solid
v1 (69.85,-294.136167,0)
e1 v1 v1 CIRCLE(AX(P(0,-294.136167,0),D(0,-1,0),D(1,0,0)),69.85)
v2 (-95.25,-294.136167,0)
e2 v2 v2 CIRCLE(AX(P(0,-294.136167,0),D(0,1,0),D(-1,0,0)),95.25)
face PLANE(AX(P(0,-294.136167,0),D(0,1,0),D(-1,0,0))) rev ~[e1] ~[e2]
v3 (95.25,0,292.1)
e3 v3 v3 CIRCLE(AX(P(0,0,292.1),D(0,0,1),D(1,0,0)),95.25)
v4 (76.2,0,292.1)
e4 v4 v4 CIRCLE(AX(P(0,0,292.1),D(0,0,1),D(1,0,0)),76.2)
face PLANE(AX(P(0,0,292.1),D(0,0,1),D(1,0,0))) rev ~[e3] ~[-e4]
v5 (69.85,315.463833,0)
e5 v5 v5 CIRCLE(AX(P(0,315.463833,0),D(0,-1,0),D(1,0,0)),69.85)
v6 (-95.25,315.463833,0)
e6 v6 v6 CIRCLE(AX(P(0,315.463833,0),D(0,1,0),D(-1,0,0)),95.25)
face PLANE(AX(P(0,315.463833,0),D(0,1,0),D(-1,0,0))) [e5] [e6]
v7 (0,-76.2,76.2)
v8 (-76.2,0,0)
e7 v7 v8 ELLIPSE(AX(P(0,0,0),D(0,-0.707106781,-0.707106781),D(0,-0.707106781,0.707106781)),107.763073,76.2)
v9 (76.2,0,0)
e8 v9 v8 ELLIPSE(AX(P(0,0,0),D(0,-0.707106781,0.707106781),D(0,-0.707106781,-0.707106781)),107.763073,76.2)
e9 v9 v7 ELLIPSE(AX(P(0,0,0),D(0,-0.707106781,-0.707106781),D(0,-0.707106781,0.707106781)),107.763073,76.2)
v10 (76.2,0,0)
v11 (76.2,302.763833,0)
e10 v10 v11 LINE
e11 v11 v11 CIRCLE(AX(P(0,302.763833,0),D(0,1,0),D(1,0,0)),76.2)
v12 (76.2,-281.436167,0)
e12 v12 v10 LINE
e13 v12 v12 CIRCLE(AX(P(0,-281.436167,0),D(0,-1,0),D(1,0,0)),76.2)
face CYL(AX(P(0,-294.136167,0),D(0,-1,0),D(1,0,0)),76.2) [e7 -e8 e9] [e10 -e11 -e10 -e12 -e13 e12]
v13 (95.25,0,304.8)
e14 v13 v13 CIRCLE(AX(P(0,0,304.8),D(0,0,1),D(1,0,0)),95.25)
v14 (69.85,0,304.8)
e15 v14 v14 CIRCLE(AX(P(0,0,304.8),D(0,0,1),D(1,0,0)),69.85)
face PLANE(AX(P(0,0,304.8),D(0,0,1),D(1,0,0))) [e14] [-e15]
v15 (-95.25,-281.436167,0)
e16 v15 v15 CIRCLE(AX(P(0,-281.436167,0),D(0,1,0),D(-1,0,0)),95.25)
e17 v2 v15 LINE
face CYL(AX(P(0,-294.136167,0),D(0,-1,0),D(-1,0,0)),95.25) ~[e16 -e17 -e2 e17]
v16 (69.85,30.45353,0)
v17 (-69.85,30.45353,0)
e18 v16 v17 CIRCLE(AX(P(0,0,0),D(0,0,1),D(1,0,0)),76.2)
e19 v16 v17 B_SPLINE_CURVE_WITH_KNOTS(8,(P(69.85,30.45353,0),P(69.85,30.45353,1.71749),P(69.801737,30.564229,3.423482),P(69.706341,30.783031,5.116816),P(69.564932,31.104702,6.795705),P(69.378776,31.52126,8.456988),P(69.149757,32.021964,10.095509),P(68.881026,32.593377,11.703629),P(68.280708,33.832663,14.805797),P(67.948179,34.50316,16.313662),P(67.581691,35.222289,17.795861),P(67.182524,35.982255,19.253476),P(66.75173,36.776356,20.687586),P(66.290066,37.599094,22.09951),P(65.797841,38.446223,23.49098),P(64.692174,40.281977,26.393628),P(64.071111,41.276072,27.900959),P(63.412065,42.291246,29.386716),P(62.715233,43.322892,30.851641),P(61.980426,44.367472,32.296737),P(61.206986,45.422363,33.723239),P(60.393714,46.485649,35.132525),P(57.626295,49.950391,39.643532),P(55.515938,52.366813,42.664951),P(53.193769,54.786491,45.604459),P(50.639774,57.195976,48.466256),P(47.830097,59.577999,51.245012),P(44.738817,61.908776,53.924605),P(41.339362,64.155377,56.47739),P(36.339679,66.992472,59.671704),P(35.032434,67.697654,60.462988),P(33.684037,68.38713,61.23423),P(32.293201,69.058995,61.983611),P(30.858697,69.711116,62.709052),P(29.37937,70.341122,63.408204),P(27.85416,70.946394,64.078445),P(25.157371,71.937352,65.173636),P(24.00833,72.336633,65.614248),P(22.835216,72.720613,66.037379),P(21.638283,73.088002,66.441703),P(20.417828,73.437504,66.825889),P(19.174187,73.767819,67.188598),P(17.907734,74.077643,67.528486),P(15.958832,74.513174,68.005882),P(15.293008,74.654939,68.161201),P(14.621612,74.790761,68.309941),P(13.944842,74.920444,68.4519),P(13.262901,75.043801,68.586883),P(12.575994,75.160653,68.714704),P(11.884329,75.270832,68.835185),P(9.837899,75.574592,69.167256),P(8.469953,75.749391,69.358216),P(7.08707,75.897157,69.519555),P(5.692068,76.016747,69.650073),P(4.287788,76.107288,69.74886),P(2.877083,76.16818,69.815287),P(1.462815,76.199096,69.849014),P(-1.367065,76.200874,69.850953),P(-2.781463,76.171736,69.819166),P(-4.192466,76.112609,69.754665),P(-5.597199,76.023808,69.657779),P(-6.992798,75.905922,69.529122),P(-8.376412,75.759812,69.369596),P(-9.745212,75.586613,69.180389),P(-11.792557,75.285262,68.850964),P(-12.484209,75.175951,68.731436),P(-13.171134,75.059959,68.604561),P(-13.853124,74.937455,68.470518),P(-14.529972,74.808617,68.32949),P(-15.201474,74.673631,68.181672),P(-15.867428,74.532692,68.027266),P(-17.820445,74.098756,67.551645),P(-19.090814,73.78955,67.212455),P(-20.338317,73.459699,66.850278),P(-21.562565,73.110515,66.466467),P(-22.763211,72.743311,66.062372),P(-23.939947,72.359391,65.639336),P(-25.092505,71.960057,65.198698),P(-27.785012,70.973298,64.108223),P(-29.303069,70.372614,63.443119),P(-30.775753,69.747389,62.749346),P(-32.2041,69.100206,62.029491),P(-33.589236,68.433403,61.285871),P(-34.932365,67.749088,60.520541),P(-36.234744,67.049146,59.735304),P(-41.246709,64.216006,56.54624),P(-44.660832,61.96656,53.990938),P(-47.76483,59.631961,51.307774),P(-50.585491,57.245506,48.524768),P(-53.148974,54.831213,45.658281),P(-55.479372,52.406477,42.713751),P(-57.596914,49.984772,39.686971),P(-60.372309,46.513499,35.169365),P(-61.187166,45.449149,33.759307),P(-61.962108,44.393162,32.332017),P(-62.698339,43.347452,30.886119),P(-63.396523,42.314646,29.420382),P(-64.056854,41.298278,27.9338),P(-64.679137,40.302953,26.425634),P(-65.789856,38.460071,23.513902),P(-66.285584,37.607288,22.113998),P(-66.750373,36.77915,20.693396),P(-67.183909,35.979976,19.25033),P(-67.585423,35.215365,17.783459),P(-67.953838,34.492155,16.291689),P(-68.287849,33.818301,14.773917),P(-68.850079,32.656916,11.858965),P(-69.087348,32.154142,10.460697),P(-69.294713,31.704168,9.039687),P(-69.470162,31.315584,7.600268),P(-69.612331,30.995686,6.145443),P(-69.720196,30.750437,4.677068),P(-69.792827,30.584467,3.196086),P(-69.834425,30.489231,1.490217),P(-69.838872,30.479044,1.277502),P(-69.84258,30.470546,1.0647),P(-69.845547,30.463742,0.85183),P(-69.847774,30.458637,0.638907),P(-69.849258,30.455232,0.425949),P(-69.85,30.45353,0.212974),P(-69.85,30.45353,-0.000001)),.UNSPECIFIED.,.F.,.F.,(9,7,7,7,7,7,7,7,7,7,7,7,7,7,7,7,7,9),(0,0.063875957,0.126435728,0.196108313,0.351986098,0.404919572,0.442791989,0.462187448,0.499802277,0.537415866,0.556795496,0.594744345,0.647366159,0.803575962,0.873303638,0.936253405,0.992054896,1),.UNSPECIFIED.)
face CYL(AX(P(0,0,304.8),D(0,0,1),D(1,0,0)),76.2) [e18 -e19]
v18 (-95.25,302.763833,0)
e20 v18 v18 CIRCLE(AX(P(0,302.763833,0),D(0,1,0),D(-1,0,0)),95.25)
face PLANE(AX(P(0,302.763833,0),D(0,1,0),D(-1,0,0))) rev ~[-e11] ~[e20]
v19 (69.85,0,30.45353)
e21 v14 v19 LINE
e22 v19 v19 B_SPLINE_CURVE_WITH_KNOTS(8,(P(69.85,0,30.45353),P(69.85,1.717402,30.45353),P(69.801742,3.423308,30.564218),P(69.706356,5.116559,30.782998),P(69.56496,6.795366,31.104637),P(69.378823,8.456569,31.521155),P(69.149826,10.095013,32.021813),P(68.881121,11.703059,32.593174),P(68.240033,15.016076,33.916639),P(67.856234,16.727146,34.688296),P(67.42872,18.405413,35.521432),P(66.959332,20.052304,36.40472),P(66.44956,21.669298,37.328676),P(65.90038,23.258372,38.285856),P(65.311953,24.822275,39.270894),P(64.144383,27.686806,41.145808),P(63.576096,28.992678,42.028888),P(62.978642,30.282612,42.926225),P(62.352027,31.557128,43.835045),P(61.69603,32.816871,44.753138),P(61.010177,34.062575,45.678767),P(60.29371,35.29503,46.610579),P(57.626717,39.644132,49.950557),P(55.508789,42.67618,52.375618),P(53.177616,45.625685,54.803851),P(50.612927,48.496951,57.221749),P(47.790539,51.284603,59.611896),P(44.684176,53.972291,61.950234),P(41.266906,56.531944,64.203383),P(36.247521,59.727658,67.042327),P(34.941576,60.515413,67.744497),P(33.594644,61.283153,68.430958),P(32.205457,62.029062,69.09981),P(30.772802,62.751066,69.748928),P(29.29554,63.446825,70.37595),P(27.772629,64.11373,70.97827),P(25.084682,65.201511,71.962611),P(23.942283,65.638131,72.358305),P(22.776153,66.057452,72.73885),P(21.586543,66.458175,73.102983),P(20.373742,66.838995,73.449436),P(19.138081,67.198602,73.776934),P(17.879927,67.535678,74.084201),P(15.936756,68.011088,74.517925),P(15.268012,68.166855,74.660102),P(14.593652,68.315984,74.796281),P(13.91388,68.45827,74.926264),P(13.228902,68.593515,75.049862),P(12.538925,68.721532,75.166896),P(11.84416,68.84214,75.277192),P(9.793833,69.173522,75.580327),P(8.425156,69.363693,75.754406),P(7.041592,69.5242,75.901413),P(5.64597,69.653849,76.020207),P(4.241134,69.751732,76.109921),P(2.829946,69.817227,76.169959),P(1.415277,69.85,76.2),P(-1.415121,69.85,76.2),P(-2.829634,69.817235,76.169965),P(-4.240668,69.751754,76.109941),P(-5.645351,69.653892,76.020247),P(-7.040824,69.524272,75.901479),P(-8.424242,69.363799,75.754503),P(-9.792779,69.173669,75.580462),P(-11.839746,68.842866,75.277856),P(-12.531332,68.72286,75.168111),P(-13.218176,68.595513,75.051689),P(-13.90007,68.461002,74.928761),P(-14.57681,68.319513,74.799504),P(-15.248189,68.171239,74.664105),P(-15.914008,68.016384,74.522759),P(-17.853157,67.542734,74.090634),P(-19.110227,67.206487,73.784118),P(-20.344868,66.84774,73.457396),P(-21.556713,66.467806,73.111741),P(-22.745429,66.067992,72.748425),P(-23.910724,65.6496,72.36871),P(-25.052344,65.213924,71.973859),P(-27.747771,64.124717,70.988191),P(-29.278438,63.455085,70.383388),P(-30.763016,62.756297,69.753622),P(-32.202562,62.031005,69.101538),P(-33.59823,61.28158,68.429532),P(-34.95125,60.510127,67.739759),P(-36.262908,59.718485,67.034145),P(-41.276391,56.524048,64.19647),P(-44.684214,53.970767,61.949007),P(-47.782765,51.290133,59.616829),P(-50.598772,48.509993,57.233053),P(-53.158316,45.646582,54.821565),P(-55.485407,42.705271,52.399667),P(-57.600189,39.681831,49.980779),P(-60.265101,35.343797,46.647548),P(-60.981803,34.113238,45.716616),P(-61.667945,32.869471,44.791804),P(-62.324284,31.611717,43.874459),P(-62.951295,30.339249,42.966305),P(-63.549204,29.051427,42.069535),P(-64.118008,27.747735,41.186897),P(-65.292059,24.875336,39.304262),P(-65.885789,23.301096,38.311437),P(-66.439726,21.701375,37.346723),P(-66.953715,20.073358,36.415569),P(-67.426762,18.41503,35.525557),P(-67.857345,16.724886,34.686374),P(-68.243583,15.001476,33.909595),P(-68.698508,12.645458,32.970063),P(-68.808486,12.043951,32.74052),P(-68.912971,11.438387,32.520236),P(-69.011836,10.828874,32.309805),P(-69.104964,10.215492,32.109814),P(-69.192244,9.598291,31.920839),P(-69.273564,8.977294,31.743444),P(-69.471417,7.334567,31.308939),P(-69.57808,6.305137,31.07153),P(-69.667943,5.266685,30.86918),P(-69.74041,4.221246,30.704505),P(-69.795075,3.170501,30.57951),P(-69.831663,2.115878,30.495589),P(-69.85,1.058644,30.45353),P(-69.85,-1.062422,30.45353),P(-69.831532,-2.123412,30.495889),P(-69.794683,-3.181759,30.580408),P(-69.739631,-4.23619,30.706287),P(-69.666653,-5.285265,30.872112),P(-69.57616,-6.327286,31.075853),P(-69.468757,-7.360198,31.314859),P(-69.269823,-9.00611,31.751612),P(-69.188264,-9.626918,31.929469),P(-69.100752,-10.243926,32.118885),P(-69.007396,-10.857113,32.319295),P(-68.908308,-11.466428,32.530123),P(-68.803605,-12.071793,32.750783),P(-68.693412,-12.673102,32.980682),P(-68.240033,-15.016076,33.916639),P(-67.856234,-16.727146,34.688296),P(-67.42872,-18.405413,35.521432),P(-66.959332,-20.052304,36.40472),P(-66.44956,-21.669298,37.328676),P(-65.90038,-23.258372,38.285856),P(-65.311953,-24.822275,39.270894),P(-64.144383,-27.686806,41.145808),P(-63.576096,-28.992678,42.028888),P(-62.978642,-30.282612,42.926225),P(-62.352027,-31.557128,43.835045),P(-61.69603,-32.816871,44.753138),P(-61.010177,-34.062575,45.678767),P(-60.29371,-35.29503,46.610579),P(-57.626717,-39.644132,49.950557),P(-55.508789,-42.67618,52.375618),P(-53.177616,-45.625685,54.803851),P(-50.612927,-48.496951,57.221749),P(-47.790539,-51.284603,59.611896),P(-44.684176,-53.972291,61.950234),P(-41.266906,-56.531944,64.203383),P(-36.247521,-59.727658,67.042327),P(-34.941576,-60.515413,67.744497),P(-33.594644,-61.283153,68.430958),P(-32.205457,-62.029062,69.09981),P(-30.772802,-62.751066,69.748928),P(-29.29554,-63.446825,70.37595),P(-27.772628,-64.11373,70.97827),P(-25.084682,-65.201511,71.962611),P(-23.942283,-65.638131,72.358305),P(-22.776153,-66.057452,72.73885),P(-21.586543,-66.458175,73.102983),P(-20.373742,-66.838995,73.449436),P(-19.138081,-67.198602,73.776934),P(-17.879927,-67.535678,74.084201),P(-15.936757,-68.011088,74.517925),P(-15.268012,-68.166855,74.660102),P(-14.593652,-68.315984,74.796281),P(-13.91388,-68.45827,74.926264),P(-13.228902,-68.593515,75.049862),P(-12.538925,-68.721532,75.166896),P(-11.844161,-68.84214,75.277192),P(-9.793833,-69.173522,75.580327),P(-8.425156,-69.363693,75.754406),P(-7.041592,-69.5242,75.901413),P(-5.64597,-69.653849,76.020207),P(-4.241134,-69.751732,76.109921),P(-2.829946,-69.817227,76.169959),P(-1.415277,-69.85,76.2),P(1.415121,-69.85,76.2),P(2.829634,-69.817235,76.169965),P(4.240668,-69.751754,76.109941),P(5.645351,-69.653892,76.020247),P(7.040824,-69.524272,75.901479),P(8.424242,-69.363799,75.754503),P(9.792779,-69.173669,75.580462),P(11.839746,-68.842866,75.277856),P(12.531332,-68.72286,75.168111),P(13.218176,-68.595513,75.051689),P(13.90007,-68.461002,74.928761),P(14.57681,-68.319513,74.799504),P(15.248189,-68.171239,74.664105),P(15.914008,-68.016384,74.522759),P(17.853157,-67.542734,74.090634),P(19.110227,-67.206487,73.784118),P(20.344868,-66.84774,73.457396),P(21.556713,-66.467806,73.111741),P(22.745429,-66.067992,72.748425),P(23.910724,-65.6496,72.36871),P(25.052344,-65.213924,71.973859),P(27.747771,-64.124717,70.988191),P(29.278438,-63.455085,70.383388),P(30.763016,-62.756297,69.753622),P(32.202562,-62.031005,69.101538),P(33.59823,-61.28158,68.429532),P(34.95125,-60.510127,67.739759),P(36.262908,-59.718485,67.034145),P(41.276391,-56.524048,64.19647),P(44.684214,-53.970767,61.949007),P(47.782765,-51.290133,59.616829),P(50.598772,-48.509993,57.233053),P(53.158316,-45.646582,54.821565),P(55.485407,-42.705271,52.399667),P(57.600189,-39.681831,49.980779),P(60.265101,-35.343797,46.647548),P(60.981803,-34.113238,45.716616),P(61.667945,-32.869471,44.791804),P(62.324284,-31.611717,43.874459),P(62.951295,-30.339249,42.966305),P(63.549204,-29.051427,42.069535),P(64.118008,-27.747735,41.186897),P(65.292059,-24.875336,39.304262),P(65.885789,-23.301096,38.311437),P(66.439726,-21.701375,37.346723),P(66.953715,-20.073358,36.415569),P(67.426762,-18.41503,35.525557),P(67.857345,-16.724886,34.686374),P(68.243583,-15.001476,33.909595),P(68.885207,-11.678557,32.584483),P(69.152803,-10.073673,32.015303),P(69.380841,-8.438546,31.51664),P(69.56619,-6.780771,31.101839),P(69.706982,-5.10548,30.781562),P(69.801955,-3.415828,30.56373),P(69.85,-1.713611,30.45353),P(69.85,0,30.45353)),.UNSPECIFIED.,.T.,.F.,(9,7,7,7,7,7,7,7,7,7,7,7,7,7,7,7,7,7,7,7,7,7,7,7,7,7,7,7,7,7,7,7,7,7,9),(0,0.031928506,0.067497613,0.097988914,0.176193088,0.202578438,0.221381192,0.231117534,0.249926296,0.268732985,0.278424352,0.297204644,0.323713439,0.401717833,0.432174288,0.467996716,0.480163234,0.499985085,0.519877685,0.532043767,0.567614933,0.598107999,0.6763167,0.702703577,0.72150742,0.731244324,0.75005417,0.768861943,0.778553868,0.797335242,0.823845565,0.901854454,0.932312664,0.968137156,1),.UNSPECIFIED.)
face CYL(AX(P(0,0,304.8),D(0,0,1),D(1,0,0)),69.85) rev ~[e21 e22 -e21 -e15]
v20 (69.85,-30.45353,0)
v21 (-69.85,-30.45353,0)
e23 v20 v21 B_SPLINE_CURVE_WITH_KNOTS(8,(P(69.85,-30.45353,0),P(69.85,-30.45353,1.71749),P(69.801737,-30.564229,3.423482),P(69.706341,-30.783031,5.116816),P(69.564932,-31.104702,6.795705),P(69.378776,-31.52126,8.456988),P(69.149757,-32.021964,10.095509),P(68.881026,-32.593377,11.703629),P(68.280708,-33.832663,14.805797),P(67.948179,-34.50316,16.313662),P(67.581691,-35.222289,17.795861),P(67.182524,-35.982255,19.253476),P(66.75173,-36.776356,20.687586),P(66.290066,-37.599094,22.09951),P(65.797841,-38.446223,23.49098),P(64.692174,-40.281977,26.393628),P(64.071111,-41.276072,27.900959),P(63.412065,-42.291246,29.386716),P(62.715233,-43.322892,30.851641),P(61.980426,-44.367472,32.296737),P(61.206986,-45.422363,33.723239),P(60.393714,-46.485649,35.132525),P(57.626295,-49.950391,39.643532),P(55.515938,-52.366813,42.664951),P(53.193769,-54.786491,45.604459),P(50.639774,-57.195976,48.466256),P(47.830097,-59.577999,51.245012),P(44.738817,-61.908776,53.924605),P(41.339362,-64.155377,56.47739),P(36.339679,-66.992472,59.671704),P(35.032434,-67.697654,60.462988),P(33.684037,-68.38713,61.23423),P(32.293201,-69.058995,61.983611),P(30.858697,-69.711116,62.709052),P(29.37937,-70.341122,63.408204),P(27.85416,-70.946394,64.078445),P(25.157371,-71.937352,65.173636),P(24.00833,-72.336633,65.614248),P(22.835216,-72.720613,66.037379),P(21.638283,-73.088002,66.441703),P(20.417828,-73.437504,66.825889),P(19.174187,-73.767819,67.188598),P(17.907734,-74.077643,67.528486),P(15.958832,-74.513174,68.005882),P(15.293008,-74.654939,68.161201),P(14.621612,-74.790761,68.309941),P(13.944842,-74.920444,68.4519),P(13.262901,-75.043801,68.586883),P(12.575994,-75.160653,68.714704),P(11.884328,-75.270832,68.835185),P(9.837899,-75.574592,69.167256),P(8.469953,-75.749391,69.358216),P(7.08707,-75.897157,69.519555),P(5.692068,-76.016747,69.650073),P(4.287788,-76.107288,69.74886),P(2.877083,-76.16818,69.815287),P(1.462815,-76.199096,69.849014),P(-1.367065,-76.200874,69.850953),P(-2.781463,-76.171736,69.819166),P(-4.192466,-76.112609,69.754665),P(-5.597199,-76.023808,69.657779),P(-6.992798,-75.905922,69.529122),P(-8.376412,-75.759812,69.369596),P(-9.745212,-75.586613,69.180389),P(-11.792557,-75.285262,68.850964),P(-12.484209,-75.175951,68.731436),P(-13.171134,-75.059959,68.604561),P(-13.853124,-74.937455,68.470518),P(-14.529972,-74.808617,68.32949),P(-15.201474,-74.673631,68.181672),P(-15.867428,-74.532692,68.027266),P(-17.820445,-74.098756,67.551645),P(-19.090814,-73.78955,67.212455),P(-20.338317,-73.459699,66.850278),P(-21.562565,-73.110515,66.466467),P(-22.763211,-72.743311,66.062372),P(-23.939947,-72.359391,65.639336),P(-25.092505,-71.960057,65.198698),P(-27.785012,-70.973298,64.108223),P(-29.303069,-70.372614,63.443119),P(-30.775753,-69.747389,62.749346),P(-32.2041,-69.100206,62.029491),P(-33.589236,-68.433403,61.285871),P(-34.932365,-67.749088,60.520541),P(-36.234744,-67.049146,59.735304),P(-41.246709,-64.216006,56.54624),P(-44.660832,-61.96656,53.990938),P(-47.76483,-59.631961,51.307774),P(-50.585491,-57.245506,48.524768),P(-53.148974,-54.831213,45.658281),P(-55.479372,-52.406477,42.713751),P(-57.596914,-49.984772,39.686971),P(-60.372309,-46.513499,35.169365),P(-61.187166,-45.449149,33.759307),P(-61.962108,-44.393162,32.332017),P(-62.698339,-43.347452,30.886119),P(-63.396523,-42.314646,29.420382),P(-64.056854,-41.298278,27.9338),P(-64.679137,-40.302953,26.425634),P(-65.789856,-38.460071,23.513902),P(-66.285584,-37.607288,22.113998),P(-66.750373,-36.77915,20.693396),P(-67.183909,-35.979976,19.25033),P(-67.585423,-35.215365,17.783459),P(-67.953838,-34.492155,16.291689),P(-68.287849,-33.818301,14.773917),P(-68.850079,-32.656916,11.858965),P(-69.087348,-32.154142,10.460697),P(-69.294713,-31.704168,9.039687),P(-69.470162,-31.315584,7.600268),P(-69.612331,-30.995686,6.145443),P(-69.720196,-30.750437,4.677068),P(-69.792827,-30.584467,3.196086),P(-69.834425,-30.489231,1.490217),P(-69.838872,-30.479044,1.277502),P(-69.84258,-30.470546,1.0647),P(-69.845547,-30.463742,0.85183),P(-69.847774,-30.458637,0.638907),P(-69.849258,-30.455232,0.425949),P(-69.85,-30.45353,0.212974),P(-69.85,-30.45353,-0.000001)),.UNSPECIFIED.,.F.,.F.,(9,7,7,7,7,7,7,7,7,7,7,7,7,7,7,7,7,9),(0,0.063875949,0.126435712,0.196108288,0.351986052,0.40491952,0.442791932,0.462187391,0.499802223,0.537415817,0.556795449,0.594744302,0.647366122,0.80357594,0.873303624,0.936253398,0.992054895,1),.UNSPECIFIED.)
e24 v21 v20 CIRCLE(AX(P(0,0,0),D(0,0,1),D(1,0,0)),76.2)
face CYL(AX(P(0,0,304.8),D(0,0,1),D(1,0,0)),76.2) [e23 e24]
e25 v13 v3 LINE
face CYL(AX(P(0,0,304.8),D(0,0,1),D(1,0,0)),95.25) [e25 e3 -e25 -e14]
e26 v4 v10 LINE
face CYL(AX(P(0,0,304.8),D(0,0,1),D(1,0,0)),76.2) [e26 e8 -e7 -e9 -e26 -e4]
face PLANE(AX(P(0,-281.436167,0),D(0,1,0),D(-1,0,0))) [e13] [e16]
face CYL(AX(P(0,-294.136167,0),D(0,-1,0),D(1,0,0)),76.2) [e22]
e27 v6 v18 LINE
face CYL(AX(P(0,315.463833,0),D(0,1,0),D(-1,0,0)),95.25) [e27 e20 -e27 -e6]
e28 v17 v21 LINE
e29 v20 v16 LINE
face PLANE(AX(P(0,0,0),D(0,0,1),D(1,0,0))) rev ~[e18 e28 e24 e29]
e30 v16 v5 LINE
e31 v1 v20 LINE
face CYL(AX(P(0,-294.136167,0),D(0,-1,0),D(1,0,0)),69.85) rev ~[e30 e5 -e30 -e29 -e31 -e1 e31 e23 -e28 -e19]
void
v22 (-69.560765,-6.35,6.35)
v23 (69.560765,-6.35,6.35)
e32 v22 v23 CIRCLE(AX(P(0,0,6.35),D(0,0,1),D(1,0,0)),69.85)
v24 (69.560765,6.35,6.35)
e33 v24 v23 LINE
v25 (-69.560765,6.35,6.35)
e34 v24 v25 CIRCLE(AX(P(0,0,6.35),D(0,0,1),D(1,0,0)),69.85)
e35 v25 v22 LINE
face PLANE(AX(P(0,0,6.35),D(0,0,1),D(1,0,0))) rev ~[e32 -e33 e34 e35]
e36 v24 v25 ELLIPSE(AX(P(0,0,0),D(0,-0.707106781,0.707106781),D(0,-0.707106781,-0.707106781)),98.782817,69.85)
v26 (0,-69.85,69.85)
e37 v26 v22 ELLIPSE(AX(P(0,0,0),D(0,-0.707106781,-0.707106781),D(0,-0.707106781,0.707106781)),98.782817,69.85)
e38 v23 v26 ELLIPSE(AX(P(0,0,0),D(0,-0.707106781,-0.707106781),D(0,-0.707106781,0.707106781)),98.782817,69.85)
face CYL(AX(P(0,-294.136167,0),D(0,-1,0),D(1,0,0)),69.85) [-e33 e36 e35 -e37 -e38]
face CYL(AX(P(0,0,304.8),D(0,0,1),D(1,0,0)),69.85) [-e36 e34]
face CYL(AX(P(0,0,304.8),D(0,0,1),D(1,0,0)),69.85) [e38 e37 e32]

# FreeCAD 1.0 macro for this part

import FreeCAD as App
import Part
import Sketcher

V = App.Vector
Q = App.Units.Quantity


def faces_at(feature, points):
    """Names of the faces that lie closest to the given points."""
    faces = feature.Shape.Faces
    near = lambda p: min(range(len(faces)), key=lambda i: faces[i].distToShape(Part.Vertex(*p))[0])
    return sorted({f"Face{near(p) + 1}" for p in points})

doc = App.newDocument("Part")
body = doc.addObject("PartDesign::Body", "Body")

sketch1 = body.newObject("Sketcher::SketchObject", "Sketch")
sketch1.AttachmentSupport = (doc.getObject("XZ_Plane"), [""])
sketch1.MapMode = "FlatFace"
sketch1.AttachmentOffset = App.Placement(V(0, 0, 294.136167), App.Rotation())
sketch1.addGeometry(Part.Circle(V(0, 0, 0), V(0, 0, 1), 76.2), False)
sketch1.addConstraint(Sketcher.Constraint("Coincident", 0, 3, -1, 1))
sketch1.addConstraint(Sketcher.Constraint("Diameter", 0, Q("6 in")))
pad1 = body.newObject("PartDesign::Pad", "Pad")
pad1.Profile = sketch1
pad1.Length = Q("24 in")
pad1.Reversed = True
doc.recompute()

thickness = body.newObject("PartDesign::Thickness", "Thickness")
thickness.Base = (pad1, faces_at(pad1, [(0, 315.464, 0), (0, -294.136, 0)]))
thickness.Value = Q("0.25 in")
thickness.Reversed = True
thickness.Join = "Arc"

sketch2 = body.newObject("Sketcher::SketchObject", "Sketch001")
sketch2.AttachmentSupport = (doc.getObject("XZ_Plane"), [""])
sketch2.MapMode = "FlatFace"
sketch2.AttachmentOffset = App.Placement(V(0, 0, 294.136167), App.Rotation())
sketch2.addGeometry(Part.Circle(V(0, 0, 0), V(0, 0, 1), 95.25), False)
sketch2.addGeometry(Part.Circle(V(0, 0, 0), V(0, 0, 1), 76.2), False)
sketch2.addConstraint(Sketcher.Constraint("Coincident", 0, 3, -1, 1))
sketch2.addConstraint(Sketcher.Constraint("Coincident", 1, 3, -1, 1))
sketch2.addConstraint(Sketcher.Constraint("Diameter", 1, Q("6 in")))
sketch2.addConstraint(Sketcher.Constraint("Diameter", 0, Q("7.5 in")))
pad2 = body.newObject("PartDesign::Pad", "Pad001")
pad2.Profile = sketch2
pad2.Length = Q("0.5 in")
pad2.Reversed = True

sketch3 = body.newObject("Sketcher::SketchObject", "Sketch002")
sketch3.AttachmentSupport = (doc.getObject("XZ_Plane"), [""])
sketch3.MapMode = "FlatFace"
sketch3.AttachmentOffset = App.Placement(V(0, 0, -315.463833), App.Rotation())
sketch3.addGeometry(Part.Circle(V(0, 0, 0), V(0, 0, 1), 95.25), False)
sketch3.addGeometry(Part.Circle(V(0, 0, 0), V(0, 0, 1), 76.2), False)
sketch3.addConstraint(Sketcher.Constraint("Coincident", 0, 3, -1, 1))
sketch3.addConstraint(Sketcher.Constraint("Coincident", 1, 3, -1, 1))
sketch3.addConstraint(Sketcher.Constraint("Diameter", 1, Q("6 in")))
sketch3.addConstraint(Sketcher.Constraint("Diameter", 0, Q("7.5 in")))
pad3 = body.newObject("PartDesign::Pad", "Pad002")
pad3.Profile = sketch3
pad3.Length = Q("0.5 in")
body2 = doc.addObject("PartDesign::Body", "Body001")

sketch4 = body2.newObject("Sketcher::SketchObject", "Sketch003")
sketch4.AttachmentSupport = (doc.getObject("XY_Plane001"), [""])
sketch4.MapMode = "FlatFace"
sketch4.AttachmentOffset = App.Placement(V(0, 0, 12 * 25.4), App.Rotation())
sketch4.addGeometry(Part.Circle(V(0, 0, 0), V(0, 0, 1), 76.2), False)
sketch4.addConstraint(Sketcher.Constraint("Coincident", 0, 3, -1, 1))
sketch4.addConstraint(Sketcher.Constraint("Diameter", 0, Q("6 in")))
pad4 = body2.newObject("PartDesign::Pad", "Pad003")
pad4.Profile = sketch4
pad4.Length = Q("12 in")
pad4.Reversed = True
doc.recompute()

thickness2 = body2.newObject("PartDesign::Thickness", "Thickness001")
thickness2.Base = (pad4, faces_at(pad4, [(0, 0, 304.8)]))
thickness2.Value = Q("0.25 in")
thickness2.Reversed = True
thickness2.Join = "Arc"
doc.recompute()

boolean = body.newObject("PartDesign::Boolean", "Boolean")
boolean.Type = "Fuse"
boolean.addObjects([body2])

sketch5 = body.newObject("Sketcher::SketchObject", "Sketch004")
sketch5.AttachmentSupport = (doc.getObject("XY_Plane"), [""])
sketch5.MapMode = "FlatFace"
sketch5.AttachmentOffset = App.Placement(V(0, 0, 12 * 25.4), App.Rotation())
sketch5.addGeometry(Part.Circle(V(0, 0, 0), V(0, 0, 1), 95.25), False)
sketch5.addGeometry(Part.Circle(V(0, 0, 0), V(0, 0, 1), 76.2), False)
sketch5.addConstraint(Sketcher.Constraint("Coincident", 0, 3, -1, 1))
sketch5.addConstraint(Sketcher.Constraint("Coincident", 1, 3, -1, 1))
sketch5.addConstraint(Sketcher.Constraint("Diameter", 1, Q("6 in")))
sketch5.addConstraint(Sketcher.Constraint("Diameter", 0, Q("7.5 in")))
pad5 = body.newObject("PartDesign::Pad", "Pad004")
pad5.Profile = sketch5
pad5.Length = Q("0.5 in")
pad5.Reversed = True

doc.recompute()
